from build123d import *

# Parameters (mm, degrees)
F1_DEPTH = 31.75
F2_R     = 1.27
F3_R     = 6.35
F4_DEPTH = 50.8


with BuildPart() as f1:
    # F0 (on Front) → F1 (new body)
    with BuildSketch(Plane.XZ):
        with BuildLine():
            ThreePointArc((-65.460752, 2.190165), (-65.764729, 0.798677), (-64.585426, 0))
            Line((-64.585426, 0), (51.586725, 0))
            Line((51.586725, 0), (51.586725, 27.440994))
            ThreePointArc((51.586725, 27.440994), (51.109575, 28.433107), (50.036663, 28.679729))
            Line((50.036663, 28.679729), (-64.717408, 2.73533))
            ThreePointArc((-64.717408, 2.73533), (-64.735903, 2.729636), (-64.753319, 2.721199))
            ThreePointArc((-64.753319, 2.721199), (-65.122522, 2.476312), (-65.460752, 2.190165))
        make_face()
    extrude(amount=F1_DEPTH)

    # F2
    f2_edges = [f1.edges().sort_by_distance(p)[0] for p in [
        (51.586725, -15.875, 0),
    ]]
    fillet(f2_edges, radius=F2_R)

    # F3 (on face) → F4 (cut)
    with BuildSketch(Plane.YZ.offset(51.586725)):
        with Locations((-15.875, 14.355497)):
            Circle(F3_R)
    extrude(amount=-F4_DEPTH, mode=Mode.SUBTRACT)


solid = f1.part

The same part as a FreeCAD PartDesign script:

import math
import FreeCAD as App
import Part
import Sketcher
from FreeCAD import Vector
Q = App.Units.Quantity


def edges_at(feature, points):
    """Names of the edges that pass closest to the given points."""
    edges = feature.Shape.Edges
    near = lambda p: min(range(len(edges)), key=lambda i: edges[i].distToShape(Part.Vertex(*p))[0])
    return sorted({f"Edge{near(p) + 1}" for p in points})

doc = App.newDocument("Part")
params = doc.addObject("Spreadsheet::Sheet", "Params")
for row, (alias, value) in enumerate([
    ("sketch1_radius", "0.05 in"),
    ("pad1_length", "1.25 in"),
    ("fillet_radius", "0.05 in"),
    ("sketch2_diameter", "0.5 in"),
    ("pocket1_length", "2 in"),
], start=1):
    params.set(f"A{row}", alias)
    params.set(f"B{row}", "=" + value)
    params.setAlias(f"B{row}", alias)

body = doc.addObject("PartDesign::Body", "Body")

# Sketch on XZ plane
sketch1 = body.newObject("Sketcher::SketchObject", "Sketch")
sketch1.AttachmentSupport = (doc.getObject("XZ_Plane"), [""])
sketch1.MapMode = "FlatFace"
sketch1.addGeometry([
    Part.ArcOfCircle(Part.Circle(Vector(-64.585, 1.27, 0), Vector(0, 0, 1), 1.27), math.radians(134), math.radians(270)),  # 0
    Part.LineSegment(Vector(-64.585, 0, 0), Vector(51.587, 0, 0)),  # 1
    Part.LineSegment(Vector(51.587, 0, 0), Vector(51.587, 27.441, 0)),  # 2
    Part.ArcOfCircle(Part.Circle(Vector(50.317, 27.441, 0), Vector(0, 0, 1), 1.27), math.radians(0), math.radians(103)),  # 3
    Part.LineSegment(Vector(50.037, 28.68, 0), Vector(-64.717, 2.735, 0)),  # 4
    Part.ArcOfCircle(Part.Circle(Vector(-64.689, 2.611, 0), Vector(0, 0, 1), 0.127), math.radians(102.74), math.radians(120.22)),  # 5
    Part.ArcOfCircle(Part.Circle(Vector(-62.839, -0.566, 0), Vector(0, 0, 1), 3.804), math.radians(120.22), math.radians(133.57)),  # 6
], False)
sketch1.addConstraint([
    Sketcher.Constraint("Tangent", 0, 2, 1, 1),
    Sketcher.Constraint("Coincident", 1, 2, 2, 1),
    Sketcher.Constraint("Tangent", 2, 2, 3, 1),
    Sketcher.Constraint("Tangent", 3, 2, 4, 1),
    Sketcher.Constraint("Coincident", 4, 2, 5, 1),
    Sketcher.Constraint("Coincident", 5, 2, 6, 1),
    Sketcher.Constraint("Coincident", 6, 2, 0, 1),
    Sketcher.Constraint("Horizontal", 1),
    Sketcher.Constraint("Vertical", 2),
    Sketcher.Constraint("Equal", 0, 3),
    Sketcher.Constraint("PointOnObject", 0, 2, -1),
    Sketcher.Constraint("Radius", 0, Q("0.05 in")),
    Sketcher.Constraint("Radius", 5, Q("0.127051 mm")),
    Sketcher.Constraint("Radius", 6, Q("3.804482 mm")),
    Sketcher.Constraint("DistanceX", 1, 1, 1, 2, Q("116.172151 mm")),
    Sketcher.Constraint("DistanceY", -1, 1, 5, 2, Q("2.721199 mm")),
    Sketcher.Constraint("DistanceY", 2, 1, 2, 2, Q("27.440994 mm")),
    Sketcher.Constraint("DistanceX", 5, 3, -1, 1, Q("64.689381 mm")),
    Sketcher.Constraint("DistanceY", -1, 1, 5, 3, Q("2.611409 mm")),
    Sketcher.Constraint("DistanceX", 6, 3, -1, 1, Q("62.838569 mm")),
    Sketcher.Constraint("DistanceX", 4, 2, -1, 1, Q("64.717408 mm")),
    Sketcher.Constraint("DistanceX", 6, 2, 5, 3, Q("0.771371 mm")),
])
sketch1.setExpression("Constraints[11]", "Params.sketch1_radius")
pad1 = body.newObject("PartDesign::Pad", "Pad")
pad1.Profile = sketch1
pad1.setExpression("Length", "Params.pad1_length")
doc.recompute()

fillet = body.newObject("PartDesign::Fillet", "Fillet")
fillet.Base = (pad1, edges_at(pad1, [(51.587, -15.875, 0)]))
fillet.setExpression("Radius", "Params.fillet_radius")

# Sketch on YZ plane
sketch2 = body.newObject("Sketcher::SketchObject", "Sketch001")
sketch2.AttachmentSupport = (doc.getObject("YZ_Plane"), [""])
sketch2.MapMode = "FlatFace"
sketch2.AttachmentOffset = App.Placement(Vector(0, 0, 51.586725), App.Rotation())
sketch2.addGeometry(Part.Circle(Vector(-16, 14, 0), Vector(0, 0, 1), 6), False)
sketch2.addConstraint([
    Sketcher.Constraint("Diameter", 0, Q("0.5 in")),
    Sketcher.Constraint("DistanceX", 0, 3, -1, 1, Q("0.625 in")),
    Sketcher.Constraint("DistanceY", -1, 1, 0, 3, Q("14.355497 mm")),
])
sketch2.setExpression("Constraints[0]", "Params.sketch2_diameter")
pocket1 = body.newObject("PartDesign::Pocket", "Pocket")
pocket1.Profile = sketch2
pocket1.setExpression("Length", "Params.pocket1_length")

doc.recompute()
